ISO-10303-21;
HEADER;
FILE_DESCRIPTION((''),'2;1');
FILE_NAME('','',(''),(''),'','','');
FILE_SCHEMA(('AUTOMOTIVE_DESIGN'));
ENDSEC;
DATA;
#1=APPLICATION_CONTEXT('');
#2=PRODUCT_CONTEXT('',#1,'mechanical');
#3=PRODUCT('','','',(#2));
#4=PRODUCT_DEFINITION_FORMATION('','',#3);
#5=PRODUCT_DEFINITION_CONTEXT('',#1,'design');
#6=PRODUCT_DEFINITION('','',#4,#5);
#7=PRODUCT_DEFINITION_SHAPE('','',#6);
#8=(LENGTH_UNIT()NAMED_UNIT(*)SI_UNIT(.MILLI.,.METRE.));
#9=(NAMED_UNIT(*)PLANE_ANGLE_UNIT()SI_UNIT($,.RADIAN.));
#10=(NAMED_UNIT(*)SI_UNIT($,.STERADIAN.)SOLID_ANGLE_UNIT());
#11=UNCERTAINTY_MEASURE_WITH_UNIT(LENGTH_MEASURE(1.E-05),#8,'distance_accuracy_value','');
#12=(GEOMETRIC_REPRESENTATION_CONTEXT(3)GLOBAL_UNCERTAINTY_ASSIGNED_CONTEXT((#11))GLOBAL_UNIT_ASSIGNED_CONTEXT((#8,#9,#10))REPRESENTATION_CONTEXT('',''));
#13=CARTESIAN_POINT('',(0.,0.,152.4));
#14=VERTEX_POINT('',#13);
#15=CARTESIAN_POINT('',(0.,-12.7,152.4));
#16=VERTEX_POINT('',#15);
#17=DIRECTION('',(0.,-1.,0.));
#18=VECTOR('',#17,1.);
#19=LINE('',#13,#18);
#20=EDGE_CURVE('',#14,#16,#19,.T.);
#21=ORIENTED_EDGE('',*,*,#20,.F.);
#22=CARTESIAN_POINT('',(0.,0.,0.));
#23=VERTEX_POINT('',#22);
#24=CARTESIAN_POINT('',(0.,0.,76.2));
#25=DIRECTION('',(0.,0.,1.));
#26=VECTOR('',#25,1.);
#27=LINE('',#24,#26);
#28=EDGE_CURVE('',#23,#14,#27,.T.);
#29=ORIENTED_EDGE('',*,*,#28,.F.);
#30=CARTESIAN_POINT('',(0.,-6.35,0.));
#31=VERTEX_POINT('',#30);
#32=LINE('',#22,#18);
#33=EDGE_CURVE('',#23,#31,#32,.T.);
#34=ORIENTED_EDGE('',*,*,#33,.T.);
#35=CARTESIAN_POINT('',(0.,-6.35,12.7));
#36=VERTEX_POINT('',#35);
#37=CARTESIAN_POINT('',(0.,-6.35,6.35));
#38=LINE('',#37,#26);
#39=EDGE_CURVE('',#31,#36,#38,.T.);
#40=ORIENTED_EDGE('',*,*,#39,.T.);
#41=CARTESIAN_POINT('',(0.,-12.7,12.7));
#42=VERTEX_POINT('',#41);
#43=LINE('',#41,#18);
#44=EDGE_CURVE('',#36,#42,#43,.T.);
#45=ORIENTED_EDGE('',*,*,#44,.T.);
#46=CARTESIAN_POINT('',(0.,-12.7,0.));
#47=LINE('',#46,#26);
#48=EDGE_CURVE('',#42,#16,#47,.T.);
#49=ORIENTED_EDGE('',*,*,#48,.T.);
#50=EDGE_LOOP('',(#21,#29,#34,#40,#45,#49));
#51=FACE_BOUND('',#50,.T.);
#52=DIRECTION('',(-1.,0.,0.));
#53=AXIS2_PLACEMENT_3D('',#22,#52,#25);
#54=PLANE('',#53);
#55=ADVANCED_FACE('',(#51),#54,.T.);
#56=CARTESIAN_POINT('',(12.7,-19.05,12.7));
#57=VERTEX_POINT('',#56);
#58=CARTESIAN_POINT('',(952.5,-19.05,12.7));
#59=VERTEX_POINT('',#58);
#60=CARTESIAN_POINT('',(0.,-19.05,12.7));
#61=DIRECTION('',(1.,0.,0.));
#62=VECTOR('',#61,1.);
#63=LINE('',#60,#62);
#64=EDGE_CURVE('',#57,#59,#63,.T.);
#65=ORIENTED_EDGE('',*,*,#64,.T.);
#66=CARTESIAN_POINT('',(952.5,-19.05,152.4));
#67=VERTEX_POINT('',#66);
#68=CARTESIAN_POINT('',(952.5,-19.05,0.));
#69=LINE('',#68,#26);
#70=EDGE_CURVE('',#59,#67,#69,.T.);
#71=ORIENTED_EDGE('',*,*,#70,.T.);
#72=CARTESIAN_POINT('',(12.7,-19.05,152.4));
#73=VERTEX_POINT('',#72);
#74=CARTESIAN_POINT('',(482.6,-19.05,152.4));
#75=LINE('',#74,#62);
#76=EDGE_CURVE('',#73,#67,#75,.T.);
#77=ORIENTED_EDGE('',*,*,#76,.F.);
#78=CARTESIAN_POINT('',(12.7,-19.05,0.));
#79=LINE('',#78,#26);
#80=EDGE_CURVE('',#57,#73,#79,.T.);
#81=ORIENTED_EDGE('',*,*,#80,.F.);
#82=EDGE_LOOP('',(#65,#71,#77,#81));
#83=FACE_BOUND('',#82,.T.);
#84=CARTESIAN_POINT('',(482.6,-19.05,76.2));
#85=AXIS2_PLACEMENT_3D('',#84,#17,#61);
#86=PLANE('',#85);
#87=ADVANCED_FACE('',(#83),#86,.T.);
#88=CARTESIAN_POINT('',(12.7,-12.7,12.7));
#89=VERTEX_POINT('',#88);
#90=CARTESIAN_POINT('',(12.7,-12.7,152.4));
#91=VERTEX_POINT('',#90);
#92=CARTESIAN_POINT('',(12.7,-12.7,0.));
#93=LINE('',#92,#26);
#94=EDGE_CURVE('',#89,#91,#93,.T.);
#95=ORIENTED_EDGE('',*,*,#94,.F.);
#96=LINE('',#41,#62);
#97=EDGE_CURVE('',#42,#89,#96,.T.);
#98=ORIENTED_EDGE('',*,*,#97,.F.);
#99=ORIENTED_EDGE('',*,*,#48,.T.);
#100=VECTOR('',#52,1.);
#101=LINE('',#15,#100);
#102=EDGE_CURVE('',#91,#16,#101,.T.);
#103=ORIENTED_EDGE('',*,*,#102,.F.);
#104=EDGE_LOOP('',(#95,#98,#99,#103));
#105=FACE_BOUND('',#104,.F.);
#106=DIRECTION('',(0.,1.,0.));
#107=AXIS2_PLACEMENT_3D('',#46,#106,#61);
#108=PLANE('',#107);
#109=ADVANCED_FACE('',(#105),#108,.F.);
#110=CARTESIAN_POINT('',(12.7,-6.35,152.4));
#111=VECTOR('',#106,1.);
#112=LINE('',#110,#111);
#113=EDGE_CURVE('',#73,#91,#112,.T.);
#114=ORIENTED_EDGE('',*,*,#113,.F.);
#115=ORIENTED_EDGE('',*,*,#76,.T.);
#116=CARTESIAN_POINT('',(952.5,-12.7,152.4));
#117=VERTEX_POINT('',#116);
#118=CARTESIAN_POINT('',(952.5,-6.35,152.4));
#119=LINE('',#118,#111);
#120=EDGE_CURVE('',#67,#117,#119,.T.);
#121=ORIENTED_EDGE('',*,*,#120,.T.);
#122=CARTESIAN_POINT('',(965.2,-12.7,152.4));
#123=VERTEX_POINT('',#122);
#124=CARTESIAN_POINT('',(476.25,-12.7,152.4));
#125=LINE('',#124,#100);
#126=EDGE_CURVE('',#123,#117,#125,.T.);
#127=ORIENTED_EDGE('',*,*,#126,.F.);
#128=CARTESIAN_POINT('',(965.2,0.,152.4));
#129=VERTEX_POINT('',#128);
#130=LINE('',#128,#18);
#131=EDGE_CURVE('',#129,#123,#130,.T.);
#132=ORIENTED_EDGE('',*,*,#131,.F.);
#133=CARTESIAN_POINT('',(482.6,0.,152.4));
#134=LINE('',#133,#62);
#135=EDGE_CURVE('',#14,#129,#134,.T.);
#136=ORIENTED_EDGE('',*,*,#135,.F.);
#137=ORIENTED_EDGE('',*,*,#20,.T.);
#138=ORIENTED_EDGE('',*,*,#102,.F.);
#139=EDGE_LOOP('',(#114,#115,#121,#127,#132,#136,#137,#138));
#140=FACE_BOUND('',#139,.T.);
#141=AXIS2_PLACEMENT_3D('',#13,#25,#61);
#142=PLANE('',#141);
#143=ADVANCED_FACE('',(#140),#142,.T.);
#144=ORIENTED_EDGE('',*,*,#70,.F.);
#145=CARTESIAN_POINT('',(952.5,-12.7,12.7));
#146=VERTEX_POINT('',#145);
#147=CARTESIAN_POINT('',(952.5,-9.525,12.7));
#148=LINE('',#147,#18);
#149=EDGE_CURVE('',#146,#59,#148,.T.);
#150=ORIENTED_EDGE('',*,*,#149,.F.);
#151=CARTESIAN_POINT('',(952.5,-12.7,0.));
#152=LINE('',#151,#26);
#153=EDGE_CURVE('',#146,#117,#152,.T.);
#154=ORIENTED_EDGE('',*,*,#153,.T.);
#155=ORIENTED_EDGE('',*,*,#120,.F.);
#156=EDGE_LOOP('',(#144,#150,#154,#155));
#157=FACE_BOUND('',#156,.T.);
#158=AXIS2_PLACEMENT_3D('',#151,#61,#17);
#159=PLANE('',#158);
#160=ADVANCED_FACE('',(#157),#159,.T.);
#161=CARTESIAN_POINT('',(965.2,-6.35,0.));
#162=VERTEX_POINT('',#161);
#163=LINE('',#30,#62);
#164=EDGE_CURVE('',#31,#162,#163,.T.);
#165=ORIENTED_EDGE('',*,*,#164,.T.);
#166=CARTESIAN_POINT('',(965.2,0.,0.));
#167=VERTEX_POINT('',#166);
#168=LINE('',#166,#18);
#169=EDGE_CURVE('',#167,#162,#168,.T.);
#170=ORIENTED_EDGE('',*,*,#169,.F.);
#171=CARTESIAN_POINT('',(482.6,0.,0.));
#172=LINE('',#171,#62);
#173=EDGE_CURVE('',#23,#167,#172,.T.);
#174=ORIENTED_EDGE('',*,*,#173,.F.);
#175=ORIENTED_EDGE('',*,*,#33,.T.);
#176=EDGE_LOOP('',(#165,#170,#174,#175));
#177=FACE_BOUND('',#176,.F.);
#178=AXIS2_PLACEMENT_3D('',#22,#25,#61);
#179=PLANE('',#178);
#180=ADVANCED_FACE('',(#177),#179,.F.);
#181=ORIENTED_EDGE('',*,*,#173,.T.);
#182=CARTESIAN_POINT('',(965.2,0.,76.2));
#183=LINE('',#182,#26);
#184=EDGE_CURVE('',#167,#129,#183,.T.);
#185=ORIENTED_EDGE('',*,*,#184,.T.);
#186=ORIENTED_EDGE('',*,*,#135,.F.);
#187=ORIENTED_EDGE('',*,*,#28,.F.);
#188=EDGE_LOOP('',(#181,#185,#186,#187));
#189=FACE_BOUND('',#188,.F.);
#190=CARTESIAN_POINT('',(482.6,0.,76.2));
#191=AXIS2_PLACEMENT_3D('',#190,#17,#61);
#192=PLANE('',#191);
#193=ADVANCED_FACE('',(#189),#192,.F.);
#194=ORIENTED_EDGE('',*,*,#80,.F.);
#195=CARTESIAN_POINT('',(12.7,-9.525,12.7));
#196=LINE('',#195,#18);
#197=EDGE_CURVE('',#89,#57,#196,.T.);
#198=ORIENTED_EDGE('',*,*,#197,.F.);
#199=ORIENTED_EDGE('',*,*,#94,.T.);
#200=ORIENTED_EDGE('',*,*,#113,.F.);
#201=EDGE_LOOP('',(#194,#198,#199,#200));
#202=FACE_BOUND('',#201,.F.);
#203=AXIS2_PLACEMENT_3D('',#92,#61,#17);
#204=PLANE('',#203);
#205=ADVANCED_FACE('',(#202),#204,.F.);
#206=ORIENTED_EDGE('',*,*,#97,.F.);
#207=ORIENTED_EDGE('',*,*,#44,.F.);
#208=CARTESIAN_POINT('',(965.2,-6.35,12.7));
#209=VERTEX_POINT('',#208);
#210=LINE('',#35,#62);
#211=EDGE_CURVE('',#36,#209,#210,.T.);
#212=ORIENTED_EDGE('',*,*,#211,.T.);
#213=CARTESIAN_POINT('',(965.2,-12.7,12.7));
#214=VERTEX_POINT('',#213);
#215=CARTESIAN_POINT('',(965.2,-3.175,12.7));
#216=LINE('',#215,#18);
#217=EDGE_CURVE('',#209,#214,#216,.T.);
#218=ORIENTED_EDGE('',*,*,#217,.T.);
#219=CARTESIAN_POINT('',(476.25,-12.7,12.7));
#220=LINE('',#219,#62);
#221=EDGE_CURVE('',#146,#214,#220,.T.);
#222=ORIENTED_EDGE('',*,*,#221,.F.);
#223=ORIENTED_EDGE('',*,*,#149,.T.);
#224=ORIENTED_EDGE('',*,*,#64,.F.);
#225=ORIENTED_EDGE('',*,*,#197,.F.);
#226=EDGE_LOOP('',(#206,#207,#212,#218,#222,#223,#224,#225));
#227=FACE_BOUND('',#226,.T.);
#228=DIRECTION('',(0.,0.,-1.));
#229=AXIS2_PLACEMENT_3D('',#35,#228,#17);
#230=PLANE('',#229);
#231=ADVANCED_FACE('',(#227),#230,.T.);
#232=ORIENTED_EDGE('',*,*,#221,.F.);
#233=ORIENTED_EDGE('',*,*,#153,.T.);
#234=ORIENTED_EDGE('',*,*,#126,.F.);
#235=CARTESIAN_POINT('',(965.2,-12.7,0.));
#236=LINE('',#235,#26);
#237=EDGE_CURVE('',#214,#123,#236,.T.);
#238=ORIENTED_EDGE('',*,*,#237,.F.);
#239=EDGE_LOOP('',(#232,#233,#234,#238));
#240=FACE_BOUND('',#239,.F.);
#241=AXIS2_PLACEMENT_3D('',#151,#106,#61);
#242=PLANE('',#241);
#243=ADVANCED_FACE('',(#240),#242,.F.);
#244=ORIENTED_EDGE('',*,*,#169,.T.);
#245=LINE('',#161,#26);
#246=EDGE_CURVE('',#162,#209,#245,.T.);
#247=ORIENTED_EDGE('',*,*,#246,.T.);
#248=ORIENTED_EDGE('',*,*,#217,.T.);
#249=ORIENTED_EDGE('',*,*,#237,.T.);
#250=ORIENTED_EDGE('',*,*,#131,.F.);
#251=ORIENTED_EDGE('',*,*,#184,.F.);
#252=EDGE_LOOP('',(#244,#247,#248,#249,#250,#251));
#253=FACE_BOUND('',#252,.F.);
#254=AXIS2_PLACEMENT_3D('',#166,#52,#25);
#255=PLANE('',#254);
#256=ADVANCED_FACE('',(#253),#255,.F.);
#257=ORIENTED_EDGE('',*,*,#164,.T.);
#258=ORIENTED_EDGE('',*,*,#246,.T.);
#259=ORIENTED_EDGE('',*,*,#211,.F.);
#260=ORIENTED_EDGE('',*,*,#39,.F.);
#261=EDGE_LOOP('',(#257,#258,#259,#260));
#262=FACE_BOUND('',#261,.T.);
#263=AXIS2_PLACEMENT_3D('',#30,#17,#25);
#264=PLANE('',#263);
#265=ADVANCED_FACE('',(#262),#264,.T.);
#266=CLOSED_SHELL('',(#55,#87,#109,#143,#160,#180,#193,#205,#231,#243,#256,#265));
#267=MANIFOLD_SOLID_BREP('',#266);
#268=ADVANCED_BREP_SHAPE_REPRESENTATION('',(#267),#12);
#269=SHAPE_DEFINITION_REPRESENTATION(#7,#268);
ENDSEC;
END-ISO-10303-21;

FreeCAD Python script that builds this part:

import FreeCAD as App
import Part
import Sketcher
Q = App.Units.Quantity

doc = App.newDocument("Part")
body = doc.addObject("PartDesign::Body", "Body")

sketch1 = body.newObject("Sketcher::SketchObject", "Sketch")
sketch1.AttachmentSupport = (doc.getObject("XZ_Plane"), [""])
sketch1.MapMode = "FlatFace"
sketch1.addGeometry(Part.LineSegment(App.Vector(0, 152, 0), App.Vector(0, 0, 0)), False)
sketch1.addGeometry(Part.LineSegment(App.Vector(0, 0, 0), App.Vector(965, 0, 0)), False)
sketch1.addGeometry(Part.LineSegment(App.Vector(965, 0, 0), App.Vector(965, 152, 0)), False)
sketch1.addGeometry(Part.LineSegment(App.Vector(965, 152, 0), App.Vector(0, 152, 0)), False)
sketch1.addConstraint(Sketcher.Constraint("Coincident", 0, 2, 1, 1))
sketch1.addConstraint(Sketcher.Constraint("Coincident", 1, 2, 2, 1))
sketch1.addConstraint(Sketcher.Constraint("Coincident", 2, 2, 3, 1))
sketch1.addConstraint(Sketcher.Constraint("Coincident", 3, 2, 0, 1))
sketch1.addConstraint(Sketcher.Constraint("Vertical", 0))
sketch1.addConstraint(Sketcher.Constraint("Horizontal", 1))
sketch1.addConstraint(Sketcher.Constraint("Vertical", 2))
sketch1.addConstraint(Sketcher.Constraint("Horizontal", 3))
sketch1.addConstraint(Sketcher.Constraint("Coincident", 0, 2, -1, 1))
sketch1.addConstraint(Sketcher.Constraint("DistanceX", 1, 1, 1, 2, Q("38 in")))
sketch1.addConstraint(Sketcher.Constraint("DistanceY", 0, 2, 0, 1, Q("6 in")))
pad1 = body.newObject("PartDesign::Pad", "Pad")
pad1.Profile = sketch1
pad1.Length = Q("0.75 in")

sketch2 = body.newObject("Sketcher::SketchObject", "Sketch001")
sketch2.AttachmentSupport = (doc.getObject("YZ_Plane"), [""])
sketch2.MapMode = "FlatFace"
sketch2.addGeometry(Part.LineSegment(App.Vector(-6, 13, 0), App.Vector(-6, 0, 0)), False)
sketch2.addGeometry(Part.LineSegment(App.Vector(-6, 0, 0), App.Vector(-19, 0, 0)), False)
sketch2.addGeometry(Part.LineSegment(App.Vector(-19, 0, 0), App.Vector(-19, 13, 0)), False)
sketch2.addGeometry(Part.LineSegment(App.Vector(-19, 13, 0), App.Vector(-6, 13, 0)), False)
sketch2.addConstraint(Sketcher.Constraint("Coincident", 0, 2, 1, 1))
sketch2.addConstraint(Sketcher.Constraint("Coincident", 1, 2, 2, 1))
sketch2.addConstraint(Sketcher.Constraint("Coincident", 2, 2, 3, 1))
sketch2.addConstraint(Sketcher.Constraint("Coincident", 3, 2, 0, 1))
sketch2.addConstraint(Sketcher.Constraint("Vertical", 0))
sketch2.addConstraint(Sketcher.Constraint("Horizontal", 1))
sketch2.addConstraint(Sketcher.Constraint("Vertical", 2))
sketch2.addConstraint(Sketcher.Constraint("Horizontal", 3))
sketch2.addConstraint(Sketcher.Constraint("PointOnObject", 0, 2, -1))
sketch2.addConstraint(Sketcher.Constraint("Equal", 3, 0))
sketch2.addConstraint(Sketcher.Constraint("DistanceX", 1, 2, 1, 1, Q("0.5 in")))
sketch2.addConstraint(Sketcher.Constraint("DistanceX", 0, 2, -1, 1, Q("0.25 in")))
pocket1 = body.newObject("PartDesign::Pocket", "Pocket")
pocket1.Profile = sketch2
pocket1.Type = "ThroughAll"
pocket1.Reversed = True

sketch3 = body.newObject("Sketcher::SketchObject", "Sketch002")
sketch3.AttachmentSupport = (doc.getObject("XY_Plane"), [""])
sketch3.MapMode = "FlatFace"
sketch3.addGeometry(Part.LineSegment(App.Vector(0, -19, 0), App.Vector(0, -13, 0)), False)
sketch3.addGeometry(Part.LineSegment(App.Vector(0, -13, 0), App.Vector(13, -13, 0)), False)
sketch3.addGeometry(Part.LineSegment(App.Vector(13, -13, 0), App.Vector(13, -19, 0)), False)
sketch3.addGeometry(Part.LineSegment(App.Vector(13, -19, 0), App.Vector(0, -19, 0)), False)
sketch3.addConstraint(Sketcher.Constraint("Coincident", 0, 2, 1, 1))
sketch3.addConstraint(Sketcher.Constraint("Coincident", 1, 2, 2, 1))
sketch3.addConstraint(Sketcher.Constraint("Coincident", 2, 2, 3, 1))
sketch3.addConstraint(Sketcher.Constraint("Coincident", 3, 2, 0, 1))
sketch3.addConstraint(Sketcher.Constraint("Vertical", 0))
sketch3.addConstraint(Sketcher.Constraint("Horizontal", 1))
sketch3.addConstraint(Sketcher.Constraint("Vertical", 2))
sketch3.addConstraint(Sketcher.Constraint("Horizontal", 3))
sketch3.addConstraint(Sketcher.Constraint("PointOnObject", 0, 2, -2))
sketch3.addConstraint(Sketcher.Constraint("DistanceX", 1, 1, 1, 2, Q("0.5 in")))
sketch3.addConstraint(Sketcher.Constraint("DistanceY", 0, 1, 0, 2, Q("0.25 in")))
sketch3.addConstraint(Sketcher.Constraint("DistanceY", 0, 2, -1, 1, Q("0.5 in")))
pocket2 = body.newObject("PartDesign::Pocket", "Pocket001")
pocket2.Profile = sketch3
pocket2.Type = "ThroughAll"
pocket2.Reversed = True

sketch4 = body.newObject("Sketcher::SketchObject", "Sketch003")
sketch4.AttachmentSupport = (doc.getObject("XY_Plane"), [""])
sketch4.MapMode = "FlatFace"
sketch4.addGeometry(Part.LineSegment(App.Vector(952, -19, 0), App.Vector(952, -13, 0)), False)
sketch4.addGeometry(Part.LineSegment(App.Vector(952, -13, 0), App.Vector(965, -13, 0)), False)
sketch4.addGeometry(Part.LineSegment(App.Vector(965, -13, 0), App.Vector(965, -19, 0)), False)
sketch4.addGeometry(Part.LineSegment(App.Vector(965, -19, 0), App.Vector(952, -19, 0)), False)
sketch4.addConstraint(Sketcher.Constraint("Coincident", 0, 2, 1, 1))
sketch4.addConstraint(Sketcher.Constraint("Coincident", 1, 2, 2, 1))
sketch4.addConstraint(Sketcher.Constraint("Coincident", 2, 2, 3, 1))
sketch4.addConstraint(Sketcher.Constraint("Coincident", 3, 2, 0, 1))
sketch4.addConstraint(Sketcher.Constraint("Vertical", 0))
sketch4.addConstraint(Sketcher.Constraint("Horizontal", 1))
sketch4.addConstraint(Sketcher.Constraint("Vertical", 2))
sketch4.addConstraint(Sketcher.Constraint("Horizontal", 3))
sketch4.addConstraint(Sketcher.Constraint("DistanceX", 1, 1, 1, 2, Q("0.5 in")))
sketch4.addConstraint(Sketcher.Constraint("DistanceX", -1, 1, 1, 2, Q("38 in")))
sketch4.addConstraint(Sketcher.Constraint("DistanceY", 0, 1, 0, 2, Q("0.25 in")))
sketch4.addConstraint(Sketcher.Constraint("DistanceY", 0, 2, -1, 1, Q("0.5 in")))
pocket3 = body.newObject("PartDesign::Pocket", "Pocket002")
pocket3.Profile = sketch4
pocket3.Type = "ThroughAll"
pocket3.Reversed = True

doc.recompute()
